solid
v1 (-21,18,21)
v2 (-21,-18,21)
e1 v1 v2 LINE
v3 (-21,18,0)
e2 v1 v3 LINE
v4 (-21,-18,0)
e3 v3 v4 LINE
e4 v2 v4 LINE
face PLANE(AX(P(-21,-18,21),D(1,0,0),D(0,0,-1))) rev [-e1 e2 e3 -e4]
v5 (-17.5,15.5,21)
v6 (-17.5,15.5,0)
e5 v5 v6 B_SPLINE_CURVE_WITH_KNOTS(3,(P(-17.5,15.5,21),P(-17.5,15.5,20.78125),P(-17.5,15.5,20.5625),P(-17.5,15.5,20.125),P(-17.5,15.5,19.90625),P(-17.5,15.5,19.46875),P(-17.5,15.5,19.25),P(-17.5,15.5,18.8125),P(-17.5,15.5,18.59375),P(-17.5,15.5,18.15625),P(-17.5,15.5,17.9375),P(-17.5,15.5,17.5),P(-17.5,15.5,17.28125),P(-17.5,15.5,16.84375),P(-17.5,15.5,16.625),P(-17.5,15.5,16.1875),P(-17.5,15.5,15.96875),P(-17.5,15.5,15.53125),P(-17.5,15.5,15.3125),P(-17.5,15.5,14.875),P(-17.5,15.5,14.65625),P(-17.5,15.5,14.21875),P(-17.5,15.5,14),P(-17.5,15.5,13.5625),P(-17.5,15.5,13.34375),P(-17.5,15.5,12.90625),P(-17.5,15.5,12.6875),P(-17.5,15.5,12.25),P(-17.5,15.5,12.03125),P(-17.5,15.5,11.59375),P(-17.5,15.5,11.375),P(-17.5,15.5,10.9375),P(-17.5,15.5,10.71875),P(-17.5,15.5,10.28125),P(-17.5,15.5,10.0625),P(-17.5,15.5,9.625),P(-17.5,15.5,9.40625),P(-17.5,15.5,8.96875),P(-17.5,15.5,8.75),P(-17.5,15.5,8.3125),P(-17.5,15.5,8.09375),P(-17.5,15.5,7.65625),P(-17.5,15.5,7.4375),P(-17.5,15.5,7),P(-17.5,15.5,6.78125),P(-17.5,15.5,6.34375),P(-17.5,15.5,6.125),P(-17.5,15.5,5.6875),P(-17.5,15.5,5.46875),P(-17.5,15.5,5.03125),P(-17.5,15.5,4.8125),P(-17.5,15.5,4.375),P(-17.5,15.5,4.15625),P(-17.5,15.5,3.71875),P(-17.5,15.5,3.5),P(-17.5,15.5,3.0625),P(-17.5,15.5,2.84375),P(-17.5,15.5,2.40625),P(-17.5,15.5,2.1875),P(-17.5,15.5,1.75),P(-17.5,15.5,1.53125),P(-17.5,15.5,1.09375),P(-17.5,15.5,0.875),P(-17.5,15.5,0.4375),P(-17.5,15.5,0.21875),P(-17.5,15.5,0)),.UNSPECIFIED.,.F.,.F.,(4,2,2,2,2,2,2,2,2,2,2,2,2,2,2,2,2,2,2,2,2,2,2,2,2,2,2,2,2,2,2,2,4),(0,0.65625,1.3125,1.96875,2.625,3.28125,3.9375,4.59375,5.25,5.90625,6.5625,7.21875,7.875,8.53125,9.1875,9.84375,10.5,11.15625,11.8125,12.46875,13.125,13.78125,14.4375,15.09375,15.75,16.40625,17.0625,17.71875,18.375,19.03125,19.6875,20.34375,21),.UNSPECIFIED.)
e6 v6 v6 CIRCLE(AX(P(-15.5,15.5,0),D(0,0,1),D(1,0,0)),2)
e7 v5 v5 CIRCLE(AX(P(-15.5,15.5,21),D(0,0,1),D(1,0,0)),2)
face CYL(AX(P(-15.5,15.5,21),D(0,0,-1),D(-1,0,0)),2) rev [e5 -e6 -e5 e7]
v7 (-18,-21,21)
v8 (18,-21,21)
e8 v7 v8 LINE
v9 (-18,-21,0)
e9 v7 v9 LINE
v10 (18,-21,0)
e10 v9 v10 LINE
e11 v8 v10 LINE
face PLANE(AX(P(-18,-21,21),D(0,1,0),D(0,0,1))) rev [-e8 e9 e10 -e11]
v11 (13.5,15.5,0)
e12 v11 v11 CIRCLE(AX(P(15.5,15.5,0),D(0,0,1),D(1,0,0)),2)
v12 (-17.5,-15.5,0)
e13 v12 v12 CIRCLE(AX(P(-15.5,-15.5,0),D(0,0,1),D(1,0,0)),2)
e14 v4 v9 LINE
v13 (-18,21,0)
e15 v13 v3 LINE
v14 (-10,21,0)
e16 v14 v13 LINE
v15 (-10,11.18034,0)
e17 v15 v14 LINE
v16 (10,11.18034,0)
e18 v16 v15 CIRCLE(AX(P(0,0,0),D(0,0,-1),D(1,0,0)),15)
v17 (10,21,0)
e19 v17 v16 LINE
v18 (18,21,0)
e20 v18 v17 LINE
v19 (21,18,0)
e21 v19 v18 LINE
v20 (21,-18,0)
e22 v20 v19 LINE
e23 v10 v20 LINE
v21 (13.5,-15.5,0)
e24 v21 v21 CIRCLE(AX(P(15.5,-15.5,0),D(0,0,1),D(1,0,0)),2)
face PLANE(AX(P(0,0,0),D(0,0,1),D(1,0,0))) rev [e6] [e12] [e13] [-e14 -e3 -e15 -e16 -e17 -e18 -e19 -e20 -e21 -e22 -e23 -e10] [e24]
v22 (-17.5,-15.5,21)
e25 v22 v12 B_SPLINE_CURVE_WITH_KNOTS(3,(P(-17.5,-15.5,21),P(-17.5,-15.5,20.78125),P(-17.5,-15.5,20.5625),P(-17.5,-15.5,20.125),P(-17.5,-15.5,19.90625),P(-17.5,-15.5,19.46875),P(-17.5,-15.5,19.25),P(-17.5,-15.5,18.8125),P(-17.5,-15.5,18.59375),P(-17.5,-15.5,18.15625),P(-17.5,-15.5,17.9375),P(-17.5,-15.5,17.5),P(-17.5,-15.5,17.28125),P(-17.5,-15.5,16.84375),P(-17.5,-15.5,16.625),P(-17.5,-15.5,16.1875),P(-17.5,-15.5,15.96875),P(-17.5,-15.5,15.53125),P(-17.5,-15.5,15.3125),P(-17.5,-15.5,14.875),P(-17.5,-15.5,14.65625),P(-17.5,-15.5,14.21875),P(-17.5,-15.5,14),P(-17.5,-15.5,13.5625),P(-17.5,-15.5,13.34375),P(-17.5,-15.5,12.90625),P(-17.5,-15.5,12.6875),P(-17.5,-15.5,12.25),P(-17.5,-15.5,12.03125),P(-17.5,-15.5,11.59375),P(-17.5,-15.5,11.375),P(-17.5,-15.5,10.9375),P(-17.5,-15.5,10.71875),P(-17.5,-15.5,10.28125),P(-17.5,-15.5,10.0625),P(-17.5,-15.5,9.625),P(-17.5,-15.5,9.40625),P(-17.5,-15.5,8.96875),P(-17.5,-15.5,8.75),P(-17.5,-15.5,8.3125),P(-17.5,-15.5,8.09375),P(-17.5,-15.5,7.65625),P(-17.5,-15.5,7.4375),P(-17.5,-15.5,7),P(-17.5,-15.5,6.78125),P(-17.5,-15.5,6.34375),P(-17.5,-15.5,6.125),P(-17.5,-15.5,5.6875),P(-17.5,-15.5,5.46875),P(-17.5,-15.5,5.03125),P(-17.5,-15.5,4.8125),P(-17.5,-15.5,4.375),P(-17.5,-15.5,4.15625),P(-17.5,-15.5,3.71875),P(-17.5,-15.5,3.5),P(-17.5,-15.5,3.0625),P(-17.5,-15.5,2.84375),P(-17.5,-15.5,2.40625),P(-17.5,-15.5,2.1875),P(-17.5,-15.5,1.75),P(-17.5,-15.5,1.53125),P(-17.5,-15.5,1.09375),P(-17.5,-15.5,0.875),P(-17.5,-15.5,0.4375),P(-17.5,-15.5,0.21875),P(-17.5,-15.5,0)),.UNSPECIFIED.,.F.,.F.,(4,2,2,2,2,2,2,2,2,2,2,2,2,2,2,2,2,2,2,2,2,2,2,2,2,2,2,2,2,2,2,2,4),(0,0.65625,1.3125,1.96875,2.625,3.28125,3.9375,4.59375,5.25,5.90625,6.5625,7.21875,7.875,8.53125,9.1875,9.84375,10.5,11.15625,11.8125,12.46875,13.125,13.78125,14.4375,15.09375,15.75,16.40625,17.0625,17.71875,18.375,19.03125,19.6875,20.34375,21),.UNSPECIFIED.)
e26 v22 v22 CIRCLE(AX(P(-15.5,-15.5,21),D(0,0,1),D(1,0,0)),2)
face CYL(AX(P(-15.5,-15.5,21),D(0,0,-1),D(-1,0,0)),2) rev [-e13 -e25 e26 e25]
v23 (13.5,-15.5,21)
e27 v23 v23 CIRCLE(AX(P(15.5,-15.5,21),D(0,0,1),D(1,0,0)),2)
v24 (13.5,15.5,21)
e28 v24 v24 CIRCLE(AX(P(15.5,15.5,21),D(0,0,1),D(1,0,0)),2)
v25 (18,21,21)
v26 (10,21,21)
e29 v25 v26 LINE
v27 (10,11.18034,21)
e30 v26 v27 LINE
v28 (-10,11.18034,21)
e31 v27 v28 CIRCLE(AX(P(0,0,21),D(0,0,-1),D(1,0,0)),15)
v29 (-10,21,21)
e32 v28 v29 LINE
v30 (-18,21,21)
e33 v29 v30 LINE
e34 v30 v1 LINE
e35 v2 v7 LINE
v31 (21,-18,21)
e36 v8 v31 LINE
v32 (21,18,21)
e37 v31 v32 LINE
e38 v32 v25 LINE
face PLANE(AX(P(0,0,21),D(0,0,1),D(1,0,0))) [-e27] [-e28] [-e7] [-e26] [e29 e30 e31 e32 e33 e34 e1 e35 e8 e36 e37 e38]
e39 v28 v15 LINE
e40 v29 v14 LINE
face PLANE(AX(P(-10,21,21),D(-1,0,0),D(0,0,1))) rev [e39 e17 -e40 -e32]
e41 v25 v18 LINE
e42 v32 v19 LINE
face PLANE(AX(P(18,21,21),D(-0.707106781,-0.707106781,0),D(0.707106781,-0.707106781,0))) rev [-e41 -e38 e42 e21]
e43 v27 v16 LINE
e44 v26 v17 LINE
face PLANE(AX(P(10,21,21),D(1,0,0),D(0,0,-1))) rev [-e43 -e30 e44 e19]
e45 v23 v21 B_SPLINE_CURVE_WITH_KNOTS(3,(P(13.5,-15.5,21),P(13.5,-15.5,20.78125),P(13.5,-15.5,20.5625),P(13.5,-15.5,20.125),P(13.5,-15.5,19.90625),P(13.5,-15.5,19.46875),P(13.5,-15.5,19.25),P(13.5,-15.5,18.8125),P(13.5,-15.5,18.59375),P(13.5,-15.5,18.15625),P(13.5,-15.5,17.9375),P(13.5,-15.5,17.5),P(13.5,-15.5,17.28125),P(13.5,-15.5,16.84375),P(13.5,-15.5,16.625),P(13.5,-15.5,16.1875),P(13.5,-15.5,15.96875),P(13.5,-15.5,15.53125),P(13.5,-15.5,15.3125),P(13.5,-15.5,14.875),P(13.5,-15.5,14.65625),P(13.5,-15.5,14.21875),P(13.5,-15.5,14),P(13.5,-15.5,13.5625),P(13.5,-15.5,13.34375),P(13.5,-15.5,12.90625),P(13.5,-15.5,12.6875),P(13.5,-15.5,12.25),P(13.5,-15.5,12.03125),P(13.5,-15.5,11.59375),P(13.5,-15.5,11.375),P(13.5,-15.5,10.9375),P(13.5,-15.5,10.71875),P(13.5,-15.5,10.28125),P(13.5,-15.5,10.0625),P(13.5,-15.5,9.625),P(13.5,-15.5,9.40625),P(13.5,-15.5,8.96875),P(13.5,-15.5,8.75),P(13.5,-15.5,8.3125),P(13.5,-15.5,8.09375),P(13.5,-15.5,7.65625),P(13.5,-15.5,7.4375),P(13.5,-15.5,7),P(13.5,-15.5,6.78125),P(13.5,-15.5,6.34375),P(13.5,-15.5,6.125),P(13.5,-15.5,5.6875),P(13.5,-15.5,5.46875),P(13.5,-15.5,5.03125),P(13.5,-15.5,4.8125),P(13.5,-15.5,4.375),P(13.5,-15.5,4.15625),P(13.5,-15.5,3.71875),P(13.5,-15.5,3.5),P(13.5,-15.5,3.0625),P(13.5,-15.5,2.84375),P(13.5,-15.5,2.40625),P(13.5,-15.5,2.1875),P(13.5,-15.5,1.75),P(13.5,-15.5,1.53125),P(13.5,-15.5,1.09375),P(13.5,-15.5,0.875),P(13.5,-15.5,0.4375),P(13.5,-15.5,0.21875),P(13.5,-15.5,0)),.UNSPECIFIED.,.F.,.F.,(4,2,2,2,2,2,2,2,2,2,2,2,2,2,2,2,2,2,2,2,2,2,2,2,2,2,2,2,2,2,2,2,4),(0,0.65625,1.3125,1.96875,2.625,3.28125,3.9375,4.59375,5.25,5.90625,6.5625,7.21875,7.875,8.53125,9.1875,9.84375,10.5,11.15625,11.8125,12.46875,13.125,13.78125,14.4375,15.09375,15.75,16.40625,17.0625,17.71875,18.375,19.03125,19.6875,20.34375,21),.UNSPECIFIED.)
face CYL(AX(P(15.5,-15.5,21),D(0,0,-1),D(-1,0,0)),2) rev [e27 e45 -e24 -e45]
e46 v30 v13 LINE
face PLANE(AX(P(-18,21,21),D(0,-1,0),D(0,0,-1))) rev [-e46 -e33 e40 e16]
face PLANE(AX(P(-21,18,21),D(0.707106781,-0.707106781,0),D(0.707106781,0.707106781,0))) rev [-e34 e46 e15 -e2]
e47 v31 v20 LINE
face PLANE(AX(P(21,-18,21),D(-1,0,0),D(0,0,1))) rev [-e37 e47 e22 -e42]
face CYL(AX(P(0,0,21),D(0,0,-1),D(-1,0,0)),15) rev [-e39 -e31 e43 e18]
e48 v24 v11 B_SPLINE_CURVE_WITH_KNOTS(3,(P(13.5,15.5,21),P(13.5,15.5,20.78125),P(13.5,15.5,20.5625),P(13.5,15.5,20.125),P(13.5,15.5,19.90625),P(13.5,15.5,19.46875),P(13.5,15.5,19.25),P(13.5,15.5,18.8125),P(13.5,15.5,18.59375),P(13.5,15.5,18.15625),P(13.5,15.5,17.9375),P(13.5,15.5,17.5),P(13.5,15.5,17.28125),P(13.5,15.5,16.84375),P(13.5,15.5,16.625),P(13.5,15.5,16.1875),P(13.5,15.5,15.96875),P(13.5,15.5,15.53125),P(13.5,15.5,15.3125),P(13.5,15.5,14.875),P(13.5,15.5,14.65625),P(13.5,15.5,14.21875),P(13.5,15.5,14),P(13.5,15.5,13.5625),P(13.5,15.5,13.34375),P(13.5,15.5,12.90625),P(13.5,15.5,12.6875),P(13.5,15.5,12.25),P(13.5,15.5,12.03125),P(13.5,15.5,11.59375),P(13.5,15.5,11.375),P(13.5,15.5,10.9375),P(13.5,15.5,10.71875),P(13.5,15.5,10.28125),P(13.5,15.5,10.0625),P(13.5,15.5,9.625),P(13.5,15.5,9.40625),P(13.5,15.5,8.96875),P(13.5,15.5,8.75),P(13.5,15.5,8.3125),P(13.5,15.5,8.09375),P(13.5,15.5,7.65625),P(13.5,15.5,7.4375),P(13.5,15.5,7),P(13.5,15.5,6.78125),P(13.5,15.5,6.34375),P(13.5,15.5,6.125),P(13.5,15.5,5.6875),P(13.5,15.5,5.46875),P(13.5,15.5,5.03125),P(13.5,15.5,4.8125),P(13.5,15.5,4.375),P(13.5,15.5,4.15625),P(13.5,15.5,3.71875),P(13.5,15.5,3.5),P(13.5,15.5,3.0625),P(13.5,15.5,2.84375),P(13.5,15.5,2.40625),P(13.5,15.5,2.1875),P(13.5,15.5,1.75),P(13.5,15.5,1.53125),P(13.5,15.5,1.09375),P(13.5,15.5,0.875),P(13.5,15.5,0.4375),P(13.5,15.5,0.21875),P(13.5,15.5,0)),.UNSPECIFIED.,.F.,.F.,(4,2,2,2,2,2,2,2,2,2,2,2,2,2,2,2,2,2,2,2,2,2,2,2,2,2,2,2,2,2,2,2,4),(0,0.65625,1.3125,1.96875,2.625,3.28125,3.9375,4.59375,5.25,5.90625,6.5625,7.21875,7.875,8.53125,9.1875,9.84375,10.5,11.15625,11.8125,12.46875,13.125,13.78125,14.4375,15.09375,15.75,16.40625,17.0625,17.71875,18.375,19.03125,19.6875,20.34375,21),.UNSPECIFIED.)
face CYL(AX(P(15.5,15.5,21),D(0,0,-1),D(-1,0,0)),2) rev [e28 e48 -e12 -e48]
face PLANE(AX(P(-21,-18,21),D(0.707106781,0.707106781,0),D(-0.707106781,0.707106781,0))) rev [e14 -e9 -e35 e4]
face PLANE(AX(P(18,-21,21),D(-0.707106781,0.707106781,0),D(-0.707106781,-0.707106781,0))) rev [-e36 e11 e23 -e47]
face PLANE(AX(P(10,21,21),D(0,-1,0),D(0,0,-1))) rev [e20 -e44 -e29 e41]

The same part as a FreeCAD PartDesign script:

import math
import FreeCAD as App
import Part
import Sketcher

V = App.Vector
Q = App.Units.Quantity

doc = App.newDocument("Part")
params = doc.addObject("Spreadsheet::Sheet", "Params")
for row, (alias, value) in enumerate([
    ("sketch1_diameter", "4 mm"),
    ("sketch1_radius", "15 mm"),
    ("sketch1_width", "36 mm"),
    ("sketch1_width2", "8 mm"),
    ("pad1_length", "21 mm"),
], start=1):
    params.set(f"A{row}", alias)
    params.set(f"B{row}", "=" + value)
    params.setAlias(f"B{row}", alias)

body = doc.addObject("PartDesign::Body", "Body")

# Sketch on XY plane
sketch1 = body.newObject("Sketcher::SketchObject", "Sketch")
sketch1.AttachmentSupport = (doc.getObject("XY_Plane"), [""])
sketch1.MapMode = "FlatFace"
sketch1.addGeometry([
    Part.LineSegment(V(-18, 21, 0), V(-21, 18, 0)),  # 0
    Part.LineSegment(V(-21, 18, 0), V(-21, -18, 0)),  # 1
    Part.LineSegment(V(-21, -18, 0), V(-18, -21, 0)),  # 2
    Part.LineSegment(V(-18, -21, 0), V(18, -21, 0)),  # 3
    Part.LineSegment(V(18, -21, 0), V(21, -18, 0)),  # 4
    Part.LineSegment(V(21, -18, 0), V(21, 18, 0)),  # 5
    Part.LineSegment(V(21, 18, 0), V(18, 21, 0)),  # 6
    Part.LineSegment(V(18, 21, 0), V(10, 21, 0)),  # 7
    Part.LineSegment(V(10, 21, 0), V(10, 11.2, 0)),  # 8
    Part.ArcOfCircle(Part.Circle(V(0, 0, 0), V(0, 0, 1), 15), math.radians(132), math.radians(408)),  # 9
    Part.LineSegment(V(-10, 11.2, 0), V(-10, 21, 0)),  # 10
    Part.LineSegment(V(-10, 21, 0), V(-18, 21, 0)),  # 11
    Part.Circle(V(15.5, -15.5, 0), V(0, 0, 1), 2),  # 12
    Part.Circle(V(-15.5, -15.5, 0), V(0, 0, 1), 2),  # 13
    Part.Circle(V(15.5, 15.5, 0), V(0, 0, 1), 2),  # 14
    Part.Circle(V(-15.5, 15.5, 0), V(0, 0, 1), 2),  # 15
], False)
sketch1.addConstraint([
    Sketcher.Constraint("Coincident", 0, 2, 1, 1),
    Sketcher.Constraint("Coincident", 1, 2, 2, 1),
    Sketcher.Constraint("Coincident", 2, 2, 3, 1),
    Sketcher.Constraint("Coincident", 3, 2, 4, 1),
    Sketcher.Constraint("Coincident", 4, 2, 5, 1),
    Sketcher.Constraint("Coincident", 5, 2, 6, 1),
    Sketcher.Constraint("Coincident", 6, 2, 7, 1),
    Sketcher.Constraint("Coincident", 7, 2, 8, 1),
    Sketcher.Constraint("Coincident", 8, 2, 9, 2),
    Sketcher.Constraint("Coincident", 9, 1, 10, 1),
    Sketcher.Constraint("Coincident", 10, 2, 11, 1),
    Sketcher.Constraint("Coincident", 11, 2, 0, 1),
    Sketcher.Constraint("Vertical", 1),
    Sketcher.Constraint("Horizontal", 3),
    Sketcher.Constraint("Vertical", 5),
    Sketcher.Constraint("Horizontal", 7),
    Sketcher.Constraint("Vertical", 8),
    Sketcher.Constraint("Vertical", 10),
    Sketcher.Constraint("Horizontal", 11),
    Sketcher.Constraint("Coincident", 9, 3, -1, 1),
    Sketcher.Constraint("Equal", 12, 13),
    Sketcher.Constraint("Equal", 13, 14),
    Sketcher.Constraint("Equal", 14, 15),
    Sketcher.Constraint("Symmetric", 13, 3, 14, 3, -1, 1),
    Sketcher.Constraint("Symmetric", 12, 3, 15, 3, -1, 1),
    Sketcher.Constraint("Symmetric", 0, 2, 4, 2, -1, 1),
    Sketcher.Constraint("Symmetric", 2, 2, 6, 2, -1, 1),
    Sketcher.Constraint("Symmetric", 3, 2, 11, 2, -1, 1),
    Sketcher.Constraint("Symmetric", 12, 3, 13, 3, -2),
    Sketcher.Constraint("Perpendicular", 0, 2),
    Sketcher.Constraint("Perpendicular", 4, 6),
    Sketcher.Constraint("Horizontal", 1, 2, 4, 2),
    Sketcher.Constraint("Horizontal", 8, 2, 9, 1),
    Sketcher.Constraint("Vertical", 3, 2, 6, 2),
    Sketcher.Constraint("Equal", 3, 1),
    Sketcher.Constraint("Diameter", 12, Q("4 mm")),
    Sketcher.Constraint("Radius", 9, Q("15 mm")),
    Sketcher.Constraint("DistanceX", 3, 1, 3, 2, Q("36 mm")),
    Sketcher.Constraint("DistanceX", 7, 2, 7, 1, Q("8 mm")),
    Sketcher.Constraint("DistanceX", 0, 2, -1, 1, Q("21 mm")),
    Sketcher.Constraint("DistanceX", 13, 3, 12, 3, Q("31 mm")),
    Sketcher.Constraint("DistanceY", 12, 3, 14, 3, Q("31 mm")),
])
sketch1.setExpression("Constraints[35]", "Params.sketch1_diameter")
sketch1.setExpression("Constraints[36]", "Params.sketch1_radius")
sketch1.setExpression("Constraints[37]", "Params.sketch1_width")
sketch1.setExpression("Constraints[38]", "Params.sketch1_width2")
pad1 = body.newObject("PartDesign::Pad", "Pad")
pad1.Profile = sketch1
pad1.setExpression("Length", "Params.pad1_length")

doc.recompute()
